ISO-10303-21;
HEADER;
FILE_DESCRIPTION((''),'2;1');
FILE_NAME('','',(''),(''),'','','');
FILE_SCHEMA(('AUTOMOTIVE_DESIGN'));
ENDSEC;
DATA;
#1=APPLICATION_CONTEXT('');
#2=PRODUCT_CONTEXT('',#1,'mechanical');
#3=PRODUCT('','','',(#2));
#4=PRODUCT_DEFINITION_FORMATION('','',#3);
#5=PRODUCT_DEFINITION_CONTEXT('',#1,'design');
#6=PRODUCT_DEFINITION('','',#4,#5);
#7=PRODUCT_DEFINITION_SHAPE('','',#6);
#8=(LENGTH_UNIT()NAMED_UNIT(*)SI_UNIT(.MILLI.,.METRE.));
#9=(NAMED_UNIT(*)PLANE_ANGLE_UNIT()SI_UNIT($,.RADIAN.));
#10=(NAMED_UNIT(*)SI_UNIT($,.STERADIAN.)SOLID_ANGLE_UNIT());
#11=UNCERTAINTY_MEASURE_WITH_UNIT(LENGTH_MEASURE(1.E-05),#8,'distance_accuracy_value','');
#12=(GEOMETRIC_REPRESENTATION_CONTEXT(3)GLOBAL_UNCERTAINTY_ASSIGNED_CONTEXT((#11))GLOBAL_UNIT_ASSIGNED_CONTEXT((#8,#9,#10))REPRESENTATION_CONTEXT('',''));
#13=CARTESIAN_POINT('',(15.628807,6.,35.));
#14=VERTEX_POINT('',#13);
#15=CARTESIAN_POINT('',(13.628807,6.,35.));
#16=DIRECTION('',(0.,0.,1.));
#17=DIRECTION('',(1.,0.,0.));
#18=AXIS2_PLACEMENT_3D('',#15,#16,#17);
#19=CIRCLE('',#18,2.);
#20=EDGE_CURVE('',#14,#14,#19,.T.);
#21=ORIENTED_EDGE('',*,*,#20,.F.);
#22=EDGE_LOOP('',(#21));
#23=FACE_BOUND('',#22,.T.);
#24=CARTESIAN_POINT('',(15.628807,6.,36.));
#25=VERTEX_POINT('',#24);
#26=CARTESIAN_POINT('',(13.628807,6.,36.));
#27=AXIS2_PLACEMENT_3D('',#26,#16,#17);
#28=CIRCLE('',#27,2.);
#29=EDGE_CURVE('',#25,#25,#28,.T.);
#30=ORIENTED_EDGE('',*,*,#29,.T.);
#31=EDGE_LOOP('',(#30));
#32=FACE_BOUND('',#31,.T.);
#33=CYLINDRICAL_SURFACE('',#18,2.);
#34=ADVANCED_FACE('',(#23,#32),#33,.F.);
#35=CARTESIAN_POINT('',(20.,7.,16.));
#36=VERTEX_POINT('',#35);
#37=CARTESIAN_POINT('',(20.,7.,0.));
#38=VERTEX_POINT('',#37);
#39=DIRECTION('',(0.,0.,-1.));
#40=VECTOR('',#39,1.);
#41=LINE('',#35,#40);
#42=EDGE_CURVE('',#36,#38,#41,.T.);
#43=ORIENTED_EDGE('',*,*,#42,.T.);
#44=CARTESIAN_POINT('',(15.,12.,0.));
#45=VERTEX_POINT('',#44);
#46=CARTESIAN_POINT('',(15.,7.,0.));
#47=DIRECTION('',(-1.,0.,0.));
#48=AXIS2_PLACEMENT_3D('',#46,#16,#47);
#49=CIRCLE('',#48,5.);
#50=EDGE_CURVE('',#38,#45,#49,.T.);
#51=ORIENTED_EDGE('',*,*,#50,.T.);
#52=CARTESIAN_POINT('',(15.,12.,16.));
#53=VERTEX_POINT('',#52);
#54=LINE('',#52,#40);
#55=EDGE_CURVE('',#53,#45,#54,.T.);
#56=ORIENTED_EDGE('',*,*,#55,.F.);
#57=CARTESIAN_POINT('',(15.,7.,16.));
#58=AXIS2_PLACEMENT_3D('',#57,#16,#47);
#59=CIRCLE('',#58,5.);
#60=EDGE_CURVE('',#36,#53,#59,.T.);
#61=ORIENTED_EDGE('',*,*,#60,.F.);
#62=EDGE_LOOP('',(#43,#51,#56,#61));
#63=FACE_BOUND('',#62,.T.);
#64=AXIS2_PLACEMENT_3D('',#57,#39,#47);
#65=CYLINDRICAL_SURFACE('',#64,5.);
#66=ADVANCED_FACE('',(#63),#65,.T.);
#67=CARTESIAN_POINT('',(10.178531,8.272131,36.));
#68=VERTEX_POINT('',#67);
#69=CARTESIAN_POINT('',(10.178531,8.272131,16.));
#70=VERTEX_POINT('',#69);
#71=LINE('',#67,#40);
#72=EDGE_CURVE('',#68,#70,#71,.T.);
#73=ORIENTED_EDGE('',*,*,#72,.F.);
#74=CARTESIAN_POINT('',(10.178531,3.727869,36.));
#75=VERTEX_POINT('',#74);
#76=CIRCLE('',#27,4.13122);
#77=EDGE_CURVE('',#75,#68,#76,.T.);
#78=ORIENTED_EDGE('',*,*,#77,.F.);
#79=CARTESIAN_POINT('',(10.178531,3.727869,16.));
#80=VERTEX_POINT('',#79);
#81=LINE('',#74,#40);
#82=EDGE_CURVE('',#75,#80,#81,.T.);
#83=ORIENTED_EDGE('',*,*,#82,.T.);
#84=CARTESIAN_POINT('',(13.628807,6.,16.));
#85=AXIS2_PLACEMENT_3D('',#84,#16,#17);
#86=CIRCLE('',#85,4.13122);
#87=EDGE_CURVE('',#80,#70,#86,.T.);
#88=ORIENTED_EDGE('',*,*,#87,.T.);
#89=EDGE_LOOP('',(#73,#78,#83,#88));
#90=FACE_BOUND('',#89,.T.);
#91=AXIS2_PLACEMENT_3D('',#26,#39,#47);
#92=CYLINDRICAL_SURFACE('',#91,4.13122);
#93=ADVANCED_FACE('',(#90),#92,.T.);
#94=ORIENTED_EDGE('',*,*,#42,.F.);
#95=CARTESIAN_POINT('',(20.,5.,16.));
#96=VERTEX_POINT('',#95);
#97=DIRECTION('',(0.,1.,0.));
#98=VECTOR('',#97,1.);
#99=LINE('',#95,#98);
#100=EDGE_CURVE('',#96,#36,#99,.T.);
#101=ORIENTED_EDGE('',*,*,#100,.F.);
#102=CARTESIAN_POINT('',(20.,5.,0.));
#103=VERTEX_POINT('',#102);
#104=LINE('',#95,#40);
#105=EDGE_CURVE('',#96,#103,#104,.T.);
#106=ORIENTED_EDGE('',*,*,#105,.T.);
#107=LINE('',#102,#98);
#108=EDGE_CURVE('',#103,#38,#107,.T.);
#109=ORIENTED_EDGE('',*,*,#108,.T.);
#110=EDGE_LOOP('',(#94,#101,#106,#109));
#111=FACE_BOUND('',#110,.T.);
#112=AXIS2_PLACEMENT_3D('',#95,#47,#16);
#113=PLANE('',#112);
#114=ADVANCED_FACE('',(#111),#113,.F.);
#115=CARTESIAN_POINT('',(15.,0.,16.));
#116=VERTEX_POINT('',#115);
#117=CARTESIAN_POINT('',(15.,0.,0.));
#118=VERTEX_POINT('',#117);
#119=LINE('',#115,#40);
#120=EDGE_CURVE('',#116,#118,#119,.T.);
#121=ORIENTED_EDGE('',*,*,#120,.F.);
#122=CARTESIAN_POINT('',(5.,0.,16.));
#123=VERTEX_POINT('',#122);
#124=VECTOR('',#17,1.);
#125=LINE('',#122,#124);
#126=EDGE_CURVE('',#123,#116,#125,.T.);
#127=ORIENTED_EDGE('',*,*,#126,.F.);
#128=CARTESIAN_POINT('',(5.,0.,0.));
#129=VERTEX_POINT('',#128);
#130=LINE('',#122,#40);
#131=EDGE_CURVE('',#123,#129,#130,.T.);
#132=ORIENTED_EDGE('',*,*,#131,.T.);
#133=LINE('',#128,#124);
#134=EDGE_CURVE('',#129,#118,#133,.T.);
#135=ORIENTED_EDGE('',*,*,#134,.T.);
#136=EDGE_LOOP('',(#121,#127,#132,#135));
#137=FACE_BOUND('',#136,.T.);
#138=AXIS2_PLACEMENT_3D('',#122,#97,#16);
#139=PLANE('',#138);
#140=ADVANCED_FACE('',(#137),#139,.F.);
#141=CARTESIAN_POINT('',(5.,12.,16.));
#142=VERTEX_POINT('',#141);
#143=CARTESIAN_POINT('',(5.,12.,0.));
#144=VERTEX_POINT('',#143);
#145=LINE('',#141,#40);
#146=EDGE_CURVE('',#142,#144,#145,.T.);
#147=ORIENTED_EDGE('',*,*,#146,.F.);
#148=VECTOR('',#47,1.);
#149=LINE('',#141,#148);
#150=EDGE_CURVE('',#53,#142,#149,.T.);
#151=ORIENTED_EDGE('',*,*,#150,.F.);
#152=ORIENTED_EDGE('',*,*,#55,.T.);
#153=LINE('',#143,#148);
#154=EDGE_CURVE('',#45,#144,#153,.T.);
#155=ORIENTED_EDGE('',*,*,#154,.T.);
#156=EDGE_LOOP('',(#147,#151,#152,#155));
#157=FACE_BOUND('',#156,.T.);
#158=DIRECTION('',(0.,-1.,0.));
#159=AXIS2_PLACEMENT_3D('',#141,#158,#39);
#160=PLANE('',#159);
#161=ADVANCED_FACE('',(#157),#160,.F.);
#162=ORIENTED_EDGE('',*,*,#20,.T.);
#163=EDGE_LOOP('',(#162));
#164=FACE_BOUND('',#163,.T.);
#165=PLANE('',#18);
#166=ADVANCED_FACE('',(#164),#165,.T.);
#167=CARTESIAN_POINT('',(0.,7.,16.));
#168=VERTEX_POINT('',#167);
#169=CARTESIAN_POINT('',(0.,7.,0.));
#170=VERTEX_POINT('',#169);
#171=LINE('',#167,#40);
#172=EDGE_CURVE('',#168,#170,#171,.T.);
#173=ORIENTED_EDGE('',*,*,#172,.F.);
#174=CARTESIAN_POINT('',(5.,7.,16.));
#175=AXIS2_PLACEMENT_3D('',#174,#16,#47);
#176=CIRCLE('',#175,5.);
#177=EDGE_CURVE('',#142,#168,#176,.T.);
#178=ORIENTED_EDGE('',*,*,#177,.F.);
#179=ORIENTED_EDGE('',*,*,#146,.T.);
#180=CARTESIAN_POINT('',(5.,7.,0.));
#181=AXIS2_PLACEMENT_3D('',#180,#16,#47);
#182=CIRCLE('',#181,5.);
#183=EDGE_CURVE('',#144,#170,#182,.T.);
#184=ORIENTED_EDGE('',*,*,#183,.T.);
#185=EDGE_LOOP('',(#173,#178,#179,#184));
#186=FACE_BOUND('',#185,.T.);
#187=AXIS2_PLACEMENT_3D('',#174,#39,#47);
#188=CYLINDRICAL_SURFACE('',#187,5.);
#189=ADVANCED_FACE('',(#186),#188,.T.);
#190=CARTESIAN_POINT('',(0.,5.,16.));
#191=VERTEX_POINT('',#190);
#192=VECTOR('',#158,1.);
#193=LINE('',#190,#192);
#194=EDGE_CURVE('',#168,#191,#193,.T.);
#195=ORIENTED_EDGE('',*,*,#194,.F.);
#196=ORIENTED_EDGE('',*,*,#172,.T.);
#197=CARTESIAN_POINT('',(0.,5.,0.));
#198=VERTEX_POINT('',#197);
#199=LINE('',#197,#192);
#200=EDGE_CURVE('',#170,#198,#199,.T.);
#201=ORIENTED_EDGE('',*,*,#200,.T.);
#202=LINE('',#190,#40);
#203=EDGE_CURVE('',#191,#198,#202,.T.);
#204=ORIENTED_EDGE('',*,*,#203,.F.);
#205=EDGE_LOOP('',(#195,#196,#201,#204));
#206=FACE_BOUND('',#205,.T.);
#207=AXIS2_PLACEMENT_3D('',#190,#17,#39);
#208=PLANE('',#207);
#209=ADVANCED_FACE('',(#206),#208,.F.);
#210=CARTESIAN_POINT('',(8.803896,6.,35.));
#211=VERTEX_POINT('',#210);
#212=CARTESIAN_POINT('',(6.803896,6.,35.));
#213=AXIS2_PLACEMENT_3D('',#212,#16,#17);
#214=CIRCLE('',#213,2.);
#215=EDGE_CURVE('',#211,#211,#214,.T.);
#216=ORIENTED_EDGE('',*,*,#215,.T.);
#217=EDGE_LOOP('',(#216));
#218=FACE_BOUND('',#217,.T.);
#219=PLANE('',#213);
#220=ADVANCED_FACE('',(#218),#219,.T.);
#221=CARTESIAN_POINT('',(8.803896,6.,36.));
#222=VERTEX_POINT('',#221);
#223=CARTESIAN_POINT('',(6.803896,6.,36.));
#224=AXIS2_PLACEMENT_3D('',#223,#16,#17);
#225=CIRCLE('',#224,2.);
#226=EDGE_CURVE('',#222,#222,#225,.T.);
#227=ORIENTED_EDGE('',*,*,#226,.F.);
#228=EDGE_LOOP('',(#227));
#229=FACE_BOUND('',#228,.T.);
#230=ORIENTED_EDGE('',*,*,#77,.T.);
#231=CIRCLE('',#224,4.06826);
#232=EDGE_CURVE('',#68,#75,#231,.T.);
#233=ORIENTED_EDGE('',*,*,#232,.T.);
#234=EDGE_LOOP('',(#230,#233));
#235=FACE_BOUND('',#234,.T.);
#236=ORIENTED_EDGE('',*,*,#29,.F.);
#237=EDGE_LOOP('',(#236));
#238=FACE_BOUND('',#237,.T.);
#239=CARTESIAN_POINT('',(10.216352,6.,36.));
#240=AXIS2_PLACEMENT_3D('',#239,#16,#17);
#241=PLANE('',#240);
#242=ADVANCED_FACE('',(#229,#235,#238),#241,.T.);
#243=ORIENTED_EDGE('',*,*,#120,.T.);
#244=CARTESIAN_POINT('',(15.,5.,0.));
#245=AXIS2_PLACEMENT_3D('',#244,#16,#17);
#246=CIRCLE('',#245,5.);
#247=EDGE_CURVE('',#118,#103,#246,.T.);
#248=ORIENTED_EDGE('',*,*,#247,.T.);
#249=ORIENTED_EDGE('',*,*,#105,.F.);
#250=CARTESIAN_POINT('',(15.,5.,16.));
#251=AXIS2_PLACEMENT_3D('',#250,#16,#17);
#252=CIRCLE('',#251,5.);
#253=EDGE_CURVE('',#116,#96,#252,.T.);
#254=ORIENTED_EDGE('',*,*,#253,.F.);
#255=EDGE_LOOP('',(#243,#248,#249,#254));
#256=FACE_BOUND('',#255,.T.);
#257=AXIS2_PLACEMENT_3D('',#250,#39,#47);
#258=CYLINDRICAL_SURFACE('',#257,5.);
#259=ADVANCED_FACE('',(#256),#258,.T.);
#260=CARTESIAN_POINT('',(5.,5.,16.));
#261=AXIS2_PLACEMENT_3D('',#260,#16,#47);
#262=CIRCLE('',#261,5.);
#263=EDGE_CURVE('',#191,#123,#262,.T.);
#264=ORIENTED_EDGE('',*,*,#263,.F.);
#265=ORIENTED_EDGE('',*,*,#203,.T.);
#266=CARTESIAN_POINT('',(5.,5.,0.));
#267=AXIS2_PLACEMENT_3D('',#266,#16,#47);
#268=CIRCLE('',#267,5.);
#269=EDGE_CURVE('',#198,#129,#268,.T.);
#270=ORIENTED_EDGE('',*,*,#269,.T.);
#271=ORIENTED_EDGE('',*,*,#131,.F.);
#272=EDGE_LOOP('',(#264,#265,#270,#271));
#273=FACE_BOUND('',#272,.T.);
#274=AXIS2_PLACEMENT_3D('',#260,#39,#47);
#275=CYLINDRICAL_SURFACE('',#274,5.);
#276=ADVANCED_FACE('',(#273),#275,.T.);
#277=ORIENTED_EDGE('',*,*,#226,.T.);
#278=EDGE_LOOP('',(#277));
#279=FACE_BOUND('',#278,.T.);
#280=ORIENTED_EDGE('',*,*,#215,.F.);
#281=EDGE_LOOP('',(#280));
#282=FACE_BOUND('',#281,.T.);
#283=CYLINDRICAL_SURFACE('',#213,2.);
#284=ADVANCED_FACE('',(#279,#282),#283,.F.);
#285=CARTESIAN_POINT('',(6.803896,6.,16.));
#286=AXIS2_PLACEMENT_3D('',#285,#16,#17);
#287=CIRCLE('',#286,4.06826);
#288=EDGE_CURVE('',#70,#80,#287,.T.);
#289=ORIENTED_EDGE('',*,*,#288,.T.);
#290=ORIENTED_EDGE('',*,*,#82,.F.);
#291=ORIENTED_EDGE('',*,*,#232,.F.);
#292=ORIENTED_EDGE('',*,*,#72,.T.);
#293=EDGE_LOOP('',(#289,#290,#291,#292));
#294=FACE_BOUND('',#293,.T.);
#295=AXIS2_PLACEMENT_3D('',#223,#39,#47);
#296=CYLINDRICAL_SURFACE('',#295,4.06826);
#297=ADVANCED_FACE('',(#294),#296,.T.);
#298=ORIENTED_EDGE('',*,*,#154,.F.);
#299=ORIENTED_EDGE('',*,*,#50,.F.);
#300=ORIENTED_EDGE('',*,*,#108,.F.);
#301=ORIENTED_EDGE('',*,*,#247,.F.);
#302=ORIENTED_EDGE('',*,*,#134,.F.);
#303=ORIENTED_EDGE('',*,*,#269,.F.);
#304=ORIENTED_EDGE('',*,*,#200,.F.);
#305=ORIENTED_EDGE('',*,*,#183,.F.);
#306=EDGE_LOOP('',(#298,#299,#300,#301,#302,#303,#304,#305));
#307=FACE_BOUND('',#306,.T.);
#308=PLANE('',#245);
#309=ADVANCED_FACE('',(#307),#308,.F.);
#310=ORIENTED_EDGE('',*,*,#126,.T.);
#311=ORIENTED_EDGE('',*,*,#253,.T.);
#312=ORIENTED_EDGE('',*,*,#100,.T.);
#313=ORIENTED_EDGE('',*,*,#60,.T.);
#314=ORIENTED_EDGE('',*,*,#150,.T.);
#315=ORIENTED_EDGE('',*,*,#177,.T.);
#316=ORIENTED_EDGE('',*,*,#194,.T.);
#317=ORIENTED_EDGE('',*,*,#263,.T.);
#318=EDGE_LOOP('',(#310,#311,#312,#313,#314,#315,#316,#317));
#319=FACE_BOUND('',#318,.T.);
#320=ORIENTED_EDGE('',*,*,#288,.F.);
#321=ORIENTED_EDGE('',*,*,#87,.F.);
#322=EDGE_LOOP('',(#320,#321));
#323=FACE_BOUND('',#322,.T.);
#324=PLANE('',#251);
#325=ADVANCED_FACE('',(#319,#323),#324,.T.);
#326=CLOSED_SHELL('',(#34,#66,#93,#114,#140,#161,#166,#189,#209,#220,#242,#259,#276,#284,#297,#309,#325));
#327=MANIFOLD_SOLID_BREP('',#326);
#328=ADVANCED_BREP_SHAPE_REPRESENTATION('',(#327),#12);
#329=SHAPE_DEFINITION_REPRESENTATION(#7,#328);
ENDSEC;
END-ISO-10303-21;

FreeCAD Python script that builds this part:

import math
import FreeCAD as App
import Part
import Sketcher

V = App.Vector

doc = App.newDocument("Part")
body = doc.addObject("PartDesign::Body", "Body")

sketch1 = doc.addObject("Sketcher::SketchObject", "Sketch")
body.addObject(sketch1)
sketch1.AttachmentSupport = (doc.XY_Plane, [""])
sketch1.MapMode = "FlatFace"
sketch1.addGeometry([
    Part.LineSegment(V(5, 0, 0), V(15, 0, 0)),
    Part.ArcOfCircle(Part.Circle(V(15, 5, 0), V(0, 0, 1), 5), math.radians(-90), math.radians(0)),
    Part.LineSegment(V(20, 5, 0), V(20, 7, 0)),
    Part.ArcOfCircle(Part.Circle(V(15, 7, 0), V(0, 0, 1), 5), math.radians(0), math.radians(90)),
    Part.LineSegment(V(15, 12, 0), V(5, 12, 0)),
    Part.ArcOfCircle(Part.Circle(V(5, 7, 0), V(0, 0, 1), 5), math.radians(90), math.radians(180)),
    Part.LineSegment(V(0, 7, 0), V(0, 5, 0)),
    Part.ArcOfCircle(Part.Circle(V(5, 5, 0), V(0, 0, 1), 5), math.radians(180), math.radians(270)),
], False)
sketch1.addConstraint([
    Sketcher.Constraint("Tangent", 0, 2, 1, 1),
    Sketcher.Constraint("Tangent", 1, 2, 2, 1),
    Sketcher.Constraint("Tangent", 2, 2, 3, 1),
    Sketcher.Constraint("Tangent", 3, 2, 4, 1),
    Sketcher.Constraint("Tangent", 4, 2, 5, 1),
    Sketcher.Constraint("Tangent", 5, 2, 6, 1),
    Sketcher.Constraint("Tangent", 6, 2, 7, 1),
    Sketcher.Constraint("Tangent", 7, 2, 0, 1),
    Sketcher.Constraint("Horizontal", 0),
    Sketcher.Constraint("Vertical", 2),
    Sketcher.Constraint("Horizontal", 4),
    Sketcher.Constraint("Vertical", 6),
    Sketcher.Constraint("Equal", 1, 3),
    Sketcher.Constraint("Equal", 3, 5),
    Sketcher.Constraint("Equal", 5, 7),
    Sketcher.Constraint("PointOnObject", 0, 2, -1),
    Sketcher.Constraint("PointOnObject", 5, 2, -2),
    Sketcher.Constraint("Radius", 1, 5.0),
    Sketcher.Constraint("DistanceX", 0, 1, 0, 2, 10.0),
    Sketcher.Constraint("DistanceY", 2, 1, 2, 2, 2.0),
])
pad1 = doc.addObject("PartDesign::Pad", "Pad")
body.addObject(pad1)
pad1.Profile = sketch1
pad1.Length = 16

sketch2 = doc.addObject("Sketcher::SketchObject", "Sketch001")
body.addObject(sketch2)
sketch2.AttachmentSupport = (doc.XY_Plane, [""])
sketch2.MapMode = "FlatFace"
sketch2.AttachmentOffset = App.Placement(V(0, 0, 16), App.Rotation())
sketch2.addGeometry([
    Part.ArcOfCircle(Part.Circle(V(13.628807, 6, 0), V(0, 0, 1), 4.13122), math.radians(-146.633663), math.radians(146.633663)),
    Part.ArcOfCircle(Part.Circle(V(6.803896, 6, 0), V(0, 0, 1), 4.06826), math.radians(33.952255), math.radians(326.047745)),
], False)
sketch2.addConstraint([
    Sketcher.Constraint("Coincident", 0, 1, 1, 2),
    Sketcher.Constraint("Coincident", 1, 1, 0, 2),
    Sketcher.Constraint("Horizontal", 0, 3, 1, 3),
    Sketcher.Constraint("DistanceY", -1, 1, 0, 3, 6.0),
    Sketcher.Constraint("Radius", 0, 4.13122),
    Sketcher.Constraint("Radius", 1, 4.06826),
    Sketcher.Constraint("DistanceX", -1, 1, 0, 1, 10.178531),
    Sketcher.Constraint("DistanceY", -1, 1, 0, 1, 3.727869),
])
pad2 = doc.addObject("PartDesign::Pad", "Pad001")
body.addObject(pad2)
pad2.Profile = sketch2
pad2.Length = 20

sketch3 = doc.addObject("Sketcher::SketchObject", "Sketch002")
body.addObject(sketch3)
sketch3.AttachmentSupport = (doc.XY_Plane, [""])
sketch3.MapMode = "FlatFace"
sketch3.AttachmentOffset = App.Placement(V(0, 0, 36), App.Rotation())
sketch3.addGeometry([
    Part.Circle(V(6.803896, 6, 0), V(0, 0, 1), 2),
    Part.Circle(V(13.628807, 6, 0), V(0, 0, 1), 2),
], False)
sketch3.addConstraint([
    Sketcher.Constraint("Equal", 0, 1),
    Sketcher.Constraint("Horizontal", 0, 3, 1, 3),
    Sketcher.Constraint("Diameter", 0, 4.0),
    Sketcher.Constraint("DistanceY", -1, 1, 0, 3, 6.0),
    Sketcher.Constraint("DistanceX", 0, 3, 1, 3, 6.824911),
    Sketcher.Constraint("DistanceX", -1, 1, 0, 3, 6.803896),
])
pocket1 = doc.addObject("PartDesign::Pocket", "Pocket")
body.addObject(pocket1)
pocket1.Profile = sketch3
pocket1.Length = 1

doc.recompute()
